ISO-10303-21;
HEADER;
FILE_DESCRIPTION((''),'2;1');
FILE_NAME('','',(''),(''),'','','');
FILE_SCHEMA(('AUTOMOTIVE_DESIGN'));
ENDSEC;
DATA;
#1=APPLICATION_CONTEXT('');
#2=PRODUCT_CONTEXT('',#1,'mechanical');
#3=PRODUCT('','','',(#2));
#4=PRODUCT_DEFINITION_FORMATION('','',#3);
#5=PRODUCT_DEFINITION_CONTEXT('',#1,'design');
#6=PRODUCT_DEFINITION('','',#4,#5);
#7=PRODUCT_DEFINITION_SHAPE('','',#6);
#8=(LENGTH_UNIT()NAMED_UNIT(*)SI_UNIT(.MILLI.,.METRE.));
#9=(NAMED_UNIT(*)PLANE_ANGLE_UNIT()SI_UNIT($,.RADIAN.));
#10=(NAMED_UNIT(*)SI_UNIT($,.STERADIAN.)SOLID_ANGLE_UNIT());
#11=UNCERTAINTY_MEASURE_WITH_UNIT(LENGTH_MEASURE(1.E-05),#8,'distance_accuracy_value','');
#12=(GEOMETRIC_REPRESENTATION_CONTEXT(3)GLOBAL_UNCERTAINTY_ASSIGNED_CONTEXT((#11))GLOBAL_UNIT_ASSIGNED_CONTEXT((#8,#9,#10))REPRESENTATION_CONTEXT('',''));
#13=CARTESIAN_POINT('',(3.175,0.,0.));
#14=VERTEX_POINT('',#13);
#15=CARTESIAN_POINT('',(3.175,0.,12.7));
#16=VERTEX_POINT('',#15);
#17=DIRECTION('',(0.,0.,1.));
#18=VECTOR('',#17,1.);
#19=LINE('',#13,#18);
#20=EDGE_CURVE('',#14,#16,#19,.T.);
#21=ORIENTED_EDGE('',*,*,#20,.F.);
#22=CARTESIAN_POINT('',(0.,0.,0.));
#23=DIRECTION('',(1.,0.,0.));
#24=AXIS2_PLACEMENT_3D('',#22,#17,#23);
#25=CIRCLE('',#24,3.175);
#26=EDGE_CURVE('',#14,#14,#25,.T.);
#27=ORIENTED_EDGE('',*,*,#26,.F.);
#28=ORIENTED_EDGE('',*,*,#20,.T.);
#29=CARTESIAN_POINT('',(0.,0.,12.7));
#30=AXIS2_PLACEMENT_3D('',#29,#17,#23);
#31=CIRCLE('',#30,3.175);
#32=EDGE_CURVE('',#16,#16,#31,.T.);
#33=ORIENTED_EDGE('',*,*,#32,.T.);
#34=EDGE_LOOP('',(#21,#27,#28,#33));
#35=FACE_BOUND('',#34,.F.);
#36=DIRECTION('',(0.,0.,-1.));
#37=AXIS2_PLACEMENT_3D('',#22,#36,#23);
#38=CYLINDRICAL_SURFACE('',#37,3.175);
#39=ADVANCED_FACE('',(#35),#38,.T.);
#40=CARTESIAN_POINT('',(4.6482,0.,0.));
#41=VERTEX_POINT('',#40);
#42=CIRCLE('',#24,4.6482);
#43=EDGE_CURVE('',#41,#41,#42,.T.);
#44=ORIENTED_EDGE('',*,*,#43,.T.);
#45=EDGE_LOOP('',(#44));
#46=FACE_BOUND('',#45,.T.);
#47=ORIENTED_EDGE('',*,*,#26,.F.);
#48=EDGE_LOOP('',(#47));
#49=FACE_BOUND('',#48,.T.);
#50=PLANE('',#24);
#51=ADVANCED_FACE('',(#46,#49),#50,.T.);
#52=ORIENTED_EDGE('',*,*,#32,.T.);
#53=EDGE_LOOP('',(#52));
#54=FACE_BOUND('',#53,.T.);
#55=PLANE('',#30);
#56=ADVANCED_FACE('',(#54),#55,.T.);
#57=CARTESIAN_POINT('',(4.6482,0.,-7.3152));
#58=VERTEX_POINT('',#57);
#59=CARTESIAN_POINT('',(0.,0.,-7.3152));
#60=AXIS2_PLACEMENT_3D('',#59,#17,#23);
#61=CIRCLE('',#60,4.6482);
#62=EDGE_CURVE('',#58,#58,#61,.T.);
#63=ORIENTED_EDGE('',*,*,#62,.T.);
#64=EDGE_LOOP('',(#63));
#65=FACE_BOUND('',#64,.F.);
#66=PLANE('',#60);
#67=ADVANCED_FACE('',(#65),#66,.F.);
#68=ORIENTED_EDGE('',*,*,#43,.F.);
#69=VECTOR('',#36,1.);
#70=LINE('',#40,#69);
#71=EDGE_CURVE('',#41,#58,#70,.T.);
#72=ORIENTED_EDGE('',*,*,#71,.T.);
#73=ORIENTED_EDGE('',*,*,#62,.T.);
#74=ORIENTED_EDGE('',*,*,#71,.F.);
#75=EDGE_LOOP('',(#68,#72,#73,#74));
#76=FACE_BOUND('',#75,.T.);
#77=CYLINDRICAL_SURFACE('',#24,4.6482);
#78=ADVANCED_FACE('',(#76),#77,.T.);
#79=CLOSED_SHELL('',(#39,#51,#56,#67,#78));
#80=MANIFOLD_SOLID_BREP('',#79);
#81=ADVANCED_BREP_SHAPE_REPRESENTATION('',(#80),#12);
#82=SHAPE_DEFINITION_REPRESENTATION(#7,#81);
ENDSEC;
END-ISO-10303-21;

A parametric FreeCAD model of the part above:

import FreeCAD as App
import Part
import Sketcher
Q = App.Units.Quantity

doc = App.newDocument("Part")
body = doc.addObject("PartDesign::Body", "Body")

# Sketch on XY plane
sketch1 = doc.addObject("Sketcher::SketchObject", "Sketch")
body.addObject(sketch1)
sketch1.AttachmentSupport = (doc.XY_Plane, [""])
sketch1.MapMode = "FlatFace"
sketch1.addGeometry(Part.Circle(App.Vector(0, 0, 0), App.Vector(0, 0, 1), 4.6482), False)
sketch1.addConstraint(Sketcher.Constraint("Coincident", 0, 3, -1, 1))
sketch1.addConstraint(Sketcher.Constraint("Diameter", 0, Q("0.366 in")))
pad1 = doc.addObject("PartDesign::Pad", "Pad")
body.addObject(pad1)
pad1.Profile = sketch1
pad1.Length = Q("0.288 in")
pad1.Reversed = True

# Sketch on XY plane
sketch2 = doc.addObject("Sketcher::SketchObject", "Sketch001")
body.addObject(sketch2)
sketch2.AttachmentSupport = (doc.XY_Plane, [""])
sketch2.MapMode = "FlatFace"
sketch2.addGeometry(Part.Circle(App.Vector(0, 0, 0), App.Vector(0, 0, 1), 3.175), False)
sketch2.addConstraint(Sketcher.Constraint("Coincident", 0, 3, -1, 1))
sketch2.addConstraint(Sketcher.Constraint("Diameter", 0, Q("0.25 in")))
pad2 = doc.addObject("PartDesign::Pad", "Pad001")
body.addObject(pad2)
pad2.Profile = sketch2
pad2.Length = Q("0.5 in")

doc.recompute()
